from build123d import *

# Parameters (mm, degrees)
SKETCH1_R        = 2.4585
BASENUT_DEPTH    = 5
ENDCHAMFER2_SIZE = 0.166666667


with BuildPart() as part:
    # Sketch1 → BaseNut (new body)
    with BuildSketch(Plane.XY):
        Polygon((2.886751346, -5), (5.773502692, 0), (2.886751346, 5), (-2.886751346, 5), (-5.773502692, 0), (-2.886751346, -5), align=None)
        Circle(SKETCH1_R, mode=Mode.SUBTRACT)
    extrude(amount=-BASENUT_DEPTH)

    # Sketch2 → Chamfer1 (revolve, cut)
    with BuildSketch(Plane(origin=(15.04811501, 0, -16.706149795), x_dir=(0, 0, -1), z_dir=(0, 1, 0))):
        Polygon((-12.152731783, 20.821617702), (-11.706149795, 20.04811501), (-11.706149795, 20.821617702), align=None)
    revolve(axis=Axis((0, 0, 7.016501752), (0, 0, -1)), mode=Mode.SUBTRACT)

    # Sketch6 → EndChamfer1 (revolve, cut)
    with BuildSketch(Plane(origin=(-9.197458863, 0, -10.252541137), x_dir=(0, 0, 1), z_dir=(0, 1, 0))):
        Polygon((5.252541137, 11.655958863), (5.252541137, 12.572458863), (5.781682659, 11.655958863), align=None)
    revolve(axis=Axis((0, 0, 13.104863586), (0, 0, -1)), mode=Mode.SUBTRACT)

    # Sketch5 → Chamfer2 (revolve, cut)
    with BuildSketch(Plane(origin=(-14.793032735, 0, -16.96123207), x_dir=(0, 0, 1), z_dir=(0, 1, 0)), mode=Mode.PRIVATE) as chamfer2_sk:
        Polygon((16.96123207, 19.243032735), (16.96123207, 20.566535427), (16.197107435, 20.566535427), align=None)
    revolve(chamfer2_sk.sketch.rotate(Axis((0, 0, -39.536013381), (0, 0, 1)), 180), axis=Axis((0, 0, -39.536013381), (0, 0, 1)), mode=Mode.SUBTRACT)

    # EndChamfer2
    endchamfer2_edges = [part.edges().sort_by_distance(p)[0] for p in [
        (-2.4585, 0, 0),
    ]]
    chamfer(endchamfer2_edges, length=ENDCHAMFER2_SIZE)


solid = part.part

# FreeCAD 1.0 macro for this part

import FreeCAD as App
import Part
import Sketcher
from FreeCAD import Vector
Q = App.Units.Quantity


def edges_at(feature, points):
    """Names of the edges that pass closest to the given points."""
    edges = feature.Shape.Edges
    near = lambda p: min(range(len(edges)), key=lambda i: edges[i].distToShape(Part.Vertex(*p))[0])
    return sorted({f"Edge{near(p) + 1}" for p in points})


def add_polygon(sketch, points):
    """Adds a closed chain of lines whose ends are joined by coincident constraints."""
    first, n = sketch.GeometryCount, len(points)
    for a, b in zip(points, points[1:] + points[:1]):
        sketch.addGeometry(Part.LineSegment(App.Vector(*a, 0), App.Vector(*b, 0)), False)
    for i in range(n):
        sketch.addConstraint(Sketcher.Constraint("Coincident", first + i, 2, first + (i + 1) % n, 1))

doc = App.newDocument("Part")
body = doc.addObject("PartDesign::Body", "Body")

sketch1 = body.newObject("Sketcher::SketchObject", "Sketch")
sketch1.AttachmentSupport = (doc.getObject("XY_Plane"), [""])
sketch1.MapMode = "FlatFace"
add_polygon(sketch1, [(2.9, -5), (5.8, 0), (2.9, 5), (-2.9, 5), (-5.8, 0), (-2.9, -5)])
sketch1.addGeometry(Part.Circle(Vector(0, 0, 0), Vector(0, 0, 1), 2.5), False)
sketch1.addConstraint([
    Sketcher.Constraint("Horizontal", 2),
    Sketcher.Constraint("Horizontal", 5),
    Sketcher.Constraint("Coincident", 6, 3, -1, 1),
    Sketcher.Constraint("Symmetric", 0, 2, 3, 2, -1, 1),
    Sketcher.Constraint("Symmetric", 1, 2, 4, 2, -1, 1),
    Sketcher.Constraint("PointOnObject", 0, 2, -1),
    Sketcher.Constraint("Parallel", 0, 3),
    Sketcher.Constraint("Vertical", 2, 2, 4, 2),
    Sketcher.Constraint("Angle", 0, Q("60 deg")),
    Sketcher.Constraint("Diameter", 6, 4.917),
    Sketcher.Constraint("DistanceY", -1, 1, 1, 2, 5.0),
    Sketcher.Constraint("DistanceX", 2, 2, 2, 1, 5.773503),
])
pad1 = body.newObject("PartDesign::Pad", "Pad")
pad1.Profile = sketch1
pad1.Length = 5
pad1.Reversed = True

sketch2 = body.newObject("Sketcher::SketchObject", "Sketch001")
sketch2.AttachmentSupport = (doc.getObject("XZ_Plane"), [""])
sketch2.MapMode = "FlatFace"
add_polygon(sketch2, [(-5.77, -4.55), (-5, -5), (-5.77, -5)])
sketch2.addConstraint([
    Sketcher.Constraint("Horizontal", 1),
    Sketcher.Constraint("Vertical", 2),
    Sketcher.Constraint("Angle", 0, Q("-30 deg")),
    Sketcher.Constraint("DistanceX", 0, 2, -1, 1, 5.0),
    Sketcher.Constraint("DistanceY", 0, 2, -1, 1, 5.0),
    Sketcher.Constraint("DistanceY", 2, 1, 2, 2, 0.446582),
])
groove = body.newObject("PartDesign::Groove", "Groove")
groove.Profile = sketch2
groove.ReferenceAxis = (sketch2, ["V_Axis"])
groove.Angle = 360

sketch3 = body.newObject("Sketcher::SketchObject", "Sketch002")
sketch3.AttachmentSupport = (doc.getObject("XZ_Plane"), [""])
sketch3.MapMode = "FlatFace"
add_polygon(sketch3, [(3.4, -5), (2.5, -5), (2.5, -4.5)])
sketch3.addConstraint([
    Sketcher.Constraint("Horizontal", 0),
    Sketcher.Constraint("Vertical", 1),
    Sketcher.Constraint("Angle", 2, Q("-30 deg")),
    Sketcher.Constraint("DistanceY", 0, 2, -1, 1, 5.0),
    Sketcher.Constraint("DistanceX", 0, 2, 0, 1, 0.9165),
    Sketcher.Constraint("DistanceX", -1, 1, 2, 2, 3.375),
])
groove2 = body.newObject("PartDesign::Groove", "Groove001")
groove2.Profile = sketch3
groove2.ReferenceAxis = (sketch3, ["V_Axis"])
groove2.Angle = 360

sketch4 = body.newObject("Sketcher::SketchObject", "Sketch003")
sketch4.AttachmentSupport = (doc.getObject("XZ_Plane"), [""])
sketch4.MapMode = "FlatFace"
add_polygon(sketch4, [(4.5, 0), (5.8, 0), (5.8, -0.8)])
sketch4.addConstraint([
    Sketcher.Constraint("Horizontal", 0),
    Sketcher.Constraint("Vertical", 1),
    Sketcher.Constraint("PointOnObject", 0, 2, -1),
    Sketcher.Constraint("Angle", 2, Q("150 deg")),
    Sketcher.Constraint("DistanceX", -1, 1, 2, 2, 4.45),
    Sketcher.Constraint("Distance", 2, 1.528249),
])
groove3 = body.newObject("PartDesign::Groove", "Groove002")
groove3.Profile = sketch4
groove3.ReferenceAxis = (sketch4, ["V_Axis"])
groove3.Angle = 360
doc.recompute()

chamfer = body.newObject("PartDesign::Chamfer", "Chamfer")
chamfer.Base = (groove3, edges_at(groove3, [(-2.458, 0, 0)]))
chamfer.Size = 0.166667

doc.recompute()
